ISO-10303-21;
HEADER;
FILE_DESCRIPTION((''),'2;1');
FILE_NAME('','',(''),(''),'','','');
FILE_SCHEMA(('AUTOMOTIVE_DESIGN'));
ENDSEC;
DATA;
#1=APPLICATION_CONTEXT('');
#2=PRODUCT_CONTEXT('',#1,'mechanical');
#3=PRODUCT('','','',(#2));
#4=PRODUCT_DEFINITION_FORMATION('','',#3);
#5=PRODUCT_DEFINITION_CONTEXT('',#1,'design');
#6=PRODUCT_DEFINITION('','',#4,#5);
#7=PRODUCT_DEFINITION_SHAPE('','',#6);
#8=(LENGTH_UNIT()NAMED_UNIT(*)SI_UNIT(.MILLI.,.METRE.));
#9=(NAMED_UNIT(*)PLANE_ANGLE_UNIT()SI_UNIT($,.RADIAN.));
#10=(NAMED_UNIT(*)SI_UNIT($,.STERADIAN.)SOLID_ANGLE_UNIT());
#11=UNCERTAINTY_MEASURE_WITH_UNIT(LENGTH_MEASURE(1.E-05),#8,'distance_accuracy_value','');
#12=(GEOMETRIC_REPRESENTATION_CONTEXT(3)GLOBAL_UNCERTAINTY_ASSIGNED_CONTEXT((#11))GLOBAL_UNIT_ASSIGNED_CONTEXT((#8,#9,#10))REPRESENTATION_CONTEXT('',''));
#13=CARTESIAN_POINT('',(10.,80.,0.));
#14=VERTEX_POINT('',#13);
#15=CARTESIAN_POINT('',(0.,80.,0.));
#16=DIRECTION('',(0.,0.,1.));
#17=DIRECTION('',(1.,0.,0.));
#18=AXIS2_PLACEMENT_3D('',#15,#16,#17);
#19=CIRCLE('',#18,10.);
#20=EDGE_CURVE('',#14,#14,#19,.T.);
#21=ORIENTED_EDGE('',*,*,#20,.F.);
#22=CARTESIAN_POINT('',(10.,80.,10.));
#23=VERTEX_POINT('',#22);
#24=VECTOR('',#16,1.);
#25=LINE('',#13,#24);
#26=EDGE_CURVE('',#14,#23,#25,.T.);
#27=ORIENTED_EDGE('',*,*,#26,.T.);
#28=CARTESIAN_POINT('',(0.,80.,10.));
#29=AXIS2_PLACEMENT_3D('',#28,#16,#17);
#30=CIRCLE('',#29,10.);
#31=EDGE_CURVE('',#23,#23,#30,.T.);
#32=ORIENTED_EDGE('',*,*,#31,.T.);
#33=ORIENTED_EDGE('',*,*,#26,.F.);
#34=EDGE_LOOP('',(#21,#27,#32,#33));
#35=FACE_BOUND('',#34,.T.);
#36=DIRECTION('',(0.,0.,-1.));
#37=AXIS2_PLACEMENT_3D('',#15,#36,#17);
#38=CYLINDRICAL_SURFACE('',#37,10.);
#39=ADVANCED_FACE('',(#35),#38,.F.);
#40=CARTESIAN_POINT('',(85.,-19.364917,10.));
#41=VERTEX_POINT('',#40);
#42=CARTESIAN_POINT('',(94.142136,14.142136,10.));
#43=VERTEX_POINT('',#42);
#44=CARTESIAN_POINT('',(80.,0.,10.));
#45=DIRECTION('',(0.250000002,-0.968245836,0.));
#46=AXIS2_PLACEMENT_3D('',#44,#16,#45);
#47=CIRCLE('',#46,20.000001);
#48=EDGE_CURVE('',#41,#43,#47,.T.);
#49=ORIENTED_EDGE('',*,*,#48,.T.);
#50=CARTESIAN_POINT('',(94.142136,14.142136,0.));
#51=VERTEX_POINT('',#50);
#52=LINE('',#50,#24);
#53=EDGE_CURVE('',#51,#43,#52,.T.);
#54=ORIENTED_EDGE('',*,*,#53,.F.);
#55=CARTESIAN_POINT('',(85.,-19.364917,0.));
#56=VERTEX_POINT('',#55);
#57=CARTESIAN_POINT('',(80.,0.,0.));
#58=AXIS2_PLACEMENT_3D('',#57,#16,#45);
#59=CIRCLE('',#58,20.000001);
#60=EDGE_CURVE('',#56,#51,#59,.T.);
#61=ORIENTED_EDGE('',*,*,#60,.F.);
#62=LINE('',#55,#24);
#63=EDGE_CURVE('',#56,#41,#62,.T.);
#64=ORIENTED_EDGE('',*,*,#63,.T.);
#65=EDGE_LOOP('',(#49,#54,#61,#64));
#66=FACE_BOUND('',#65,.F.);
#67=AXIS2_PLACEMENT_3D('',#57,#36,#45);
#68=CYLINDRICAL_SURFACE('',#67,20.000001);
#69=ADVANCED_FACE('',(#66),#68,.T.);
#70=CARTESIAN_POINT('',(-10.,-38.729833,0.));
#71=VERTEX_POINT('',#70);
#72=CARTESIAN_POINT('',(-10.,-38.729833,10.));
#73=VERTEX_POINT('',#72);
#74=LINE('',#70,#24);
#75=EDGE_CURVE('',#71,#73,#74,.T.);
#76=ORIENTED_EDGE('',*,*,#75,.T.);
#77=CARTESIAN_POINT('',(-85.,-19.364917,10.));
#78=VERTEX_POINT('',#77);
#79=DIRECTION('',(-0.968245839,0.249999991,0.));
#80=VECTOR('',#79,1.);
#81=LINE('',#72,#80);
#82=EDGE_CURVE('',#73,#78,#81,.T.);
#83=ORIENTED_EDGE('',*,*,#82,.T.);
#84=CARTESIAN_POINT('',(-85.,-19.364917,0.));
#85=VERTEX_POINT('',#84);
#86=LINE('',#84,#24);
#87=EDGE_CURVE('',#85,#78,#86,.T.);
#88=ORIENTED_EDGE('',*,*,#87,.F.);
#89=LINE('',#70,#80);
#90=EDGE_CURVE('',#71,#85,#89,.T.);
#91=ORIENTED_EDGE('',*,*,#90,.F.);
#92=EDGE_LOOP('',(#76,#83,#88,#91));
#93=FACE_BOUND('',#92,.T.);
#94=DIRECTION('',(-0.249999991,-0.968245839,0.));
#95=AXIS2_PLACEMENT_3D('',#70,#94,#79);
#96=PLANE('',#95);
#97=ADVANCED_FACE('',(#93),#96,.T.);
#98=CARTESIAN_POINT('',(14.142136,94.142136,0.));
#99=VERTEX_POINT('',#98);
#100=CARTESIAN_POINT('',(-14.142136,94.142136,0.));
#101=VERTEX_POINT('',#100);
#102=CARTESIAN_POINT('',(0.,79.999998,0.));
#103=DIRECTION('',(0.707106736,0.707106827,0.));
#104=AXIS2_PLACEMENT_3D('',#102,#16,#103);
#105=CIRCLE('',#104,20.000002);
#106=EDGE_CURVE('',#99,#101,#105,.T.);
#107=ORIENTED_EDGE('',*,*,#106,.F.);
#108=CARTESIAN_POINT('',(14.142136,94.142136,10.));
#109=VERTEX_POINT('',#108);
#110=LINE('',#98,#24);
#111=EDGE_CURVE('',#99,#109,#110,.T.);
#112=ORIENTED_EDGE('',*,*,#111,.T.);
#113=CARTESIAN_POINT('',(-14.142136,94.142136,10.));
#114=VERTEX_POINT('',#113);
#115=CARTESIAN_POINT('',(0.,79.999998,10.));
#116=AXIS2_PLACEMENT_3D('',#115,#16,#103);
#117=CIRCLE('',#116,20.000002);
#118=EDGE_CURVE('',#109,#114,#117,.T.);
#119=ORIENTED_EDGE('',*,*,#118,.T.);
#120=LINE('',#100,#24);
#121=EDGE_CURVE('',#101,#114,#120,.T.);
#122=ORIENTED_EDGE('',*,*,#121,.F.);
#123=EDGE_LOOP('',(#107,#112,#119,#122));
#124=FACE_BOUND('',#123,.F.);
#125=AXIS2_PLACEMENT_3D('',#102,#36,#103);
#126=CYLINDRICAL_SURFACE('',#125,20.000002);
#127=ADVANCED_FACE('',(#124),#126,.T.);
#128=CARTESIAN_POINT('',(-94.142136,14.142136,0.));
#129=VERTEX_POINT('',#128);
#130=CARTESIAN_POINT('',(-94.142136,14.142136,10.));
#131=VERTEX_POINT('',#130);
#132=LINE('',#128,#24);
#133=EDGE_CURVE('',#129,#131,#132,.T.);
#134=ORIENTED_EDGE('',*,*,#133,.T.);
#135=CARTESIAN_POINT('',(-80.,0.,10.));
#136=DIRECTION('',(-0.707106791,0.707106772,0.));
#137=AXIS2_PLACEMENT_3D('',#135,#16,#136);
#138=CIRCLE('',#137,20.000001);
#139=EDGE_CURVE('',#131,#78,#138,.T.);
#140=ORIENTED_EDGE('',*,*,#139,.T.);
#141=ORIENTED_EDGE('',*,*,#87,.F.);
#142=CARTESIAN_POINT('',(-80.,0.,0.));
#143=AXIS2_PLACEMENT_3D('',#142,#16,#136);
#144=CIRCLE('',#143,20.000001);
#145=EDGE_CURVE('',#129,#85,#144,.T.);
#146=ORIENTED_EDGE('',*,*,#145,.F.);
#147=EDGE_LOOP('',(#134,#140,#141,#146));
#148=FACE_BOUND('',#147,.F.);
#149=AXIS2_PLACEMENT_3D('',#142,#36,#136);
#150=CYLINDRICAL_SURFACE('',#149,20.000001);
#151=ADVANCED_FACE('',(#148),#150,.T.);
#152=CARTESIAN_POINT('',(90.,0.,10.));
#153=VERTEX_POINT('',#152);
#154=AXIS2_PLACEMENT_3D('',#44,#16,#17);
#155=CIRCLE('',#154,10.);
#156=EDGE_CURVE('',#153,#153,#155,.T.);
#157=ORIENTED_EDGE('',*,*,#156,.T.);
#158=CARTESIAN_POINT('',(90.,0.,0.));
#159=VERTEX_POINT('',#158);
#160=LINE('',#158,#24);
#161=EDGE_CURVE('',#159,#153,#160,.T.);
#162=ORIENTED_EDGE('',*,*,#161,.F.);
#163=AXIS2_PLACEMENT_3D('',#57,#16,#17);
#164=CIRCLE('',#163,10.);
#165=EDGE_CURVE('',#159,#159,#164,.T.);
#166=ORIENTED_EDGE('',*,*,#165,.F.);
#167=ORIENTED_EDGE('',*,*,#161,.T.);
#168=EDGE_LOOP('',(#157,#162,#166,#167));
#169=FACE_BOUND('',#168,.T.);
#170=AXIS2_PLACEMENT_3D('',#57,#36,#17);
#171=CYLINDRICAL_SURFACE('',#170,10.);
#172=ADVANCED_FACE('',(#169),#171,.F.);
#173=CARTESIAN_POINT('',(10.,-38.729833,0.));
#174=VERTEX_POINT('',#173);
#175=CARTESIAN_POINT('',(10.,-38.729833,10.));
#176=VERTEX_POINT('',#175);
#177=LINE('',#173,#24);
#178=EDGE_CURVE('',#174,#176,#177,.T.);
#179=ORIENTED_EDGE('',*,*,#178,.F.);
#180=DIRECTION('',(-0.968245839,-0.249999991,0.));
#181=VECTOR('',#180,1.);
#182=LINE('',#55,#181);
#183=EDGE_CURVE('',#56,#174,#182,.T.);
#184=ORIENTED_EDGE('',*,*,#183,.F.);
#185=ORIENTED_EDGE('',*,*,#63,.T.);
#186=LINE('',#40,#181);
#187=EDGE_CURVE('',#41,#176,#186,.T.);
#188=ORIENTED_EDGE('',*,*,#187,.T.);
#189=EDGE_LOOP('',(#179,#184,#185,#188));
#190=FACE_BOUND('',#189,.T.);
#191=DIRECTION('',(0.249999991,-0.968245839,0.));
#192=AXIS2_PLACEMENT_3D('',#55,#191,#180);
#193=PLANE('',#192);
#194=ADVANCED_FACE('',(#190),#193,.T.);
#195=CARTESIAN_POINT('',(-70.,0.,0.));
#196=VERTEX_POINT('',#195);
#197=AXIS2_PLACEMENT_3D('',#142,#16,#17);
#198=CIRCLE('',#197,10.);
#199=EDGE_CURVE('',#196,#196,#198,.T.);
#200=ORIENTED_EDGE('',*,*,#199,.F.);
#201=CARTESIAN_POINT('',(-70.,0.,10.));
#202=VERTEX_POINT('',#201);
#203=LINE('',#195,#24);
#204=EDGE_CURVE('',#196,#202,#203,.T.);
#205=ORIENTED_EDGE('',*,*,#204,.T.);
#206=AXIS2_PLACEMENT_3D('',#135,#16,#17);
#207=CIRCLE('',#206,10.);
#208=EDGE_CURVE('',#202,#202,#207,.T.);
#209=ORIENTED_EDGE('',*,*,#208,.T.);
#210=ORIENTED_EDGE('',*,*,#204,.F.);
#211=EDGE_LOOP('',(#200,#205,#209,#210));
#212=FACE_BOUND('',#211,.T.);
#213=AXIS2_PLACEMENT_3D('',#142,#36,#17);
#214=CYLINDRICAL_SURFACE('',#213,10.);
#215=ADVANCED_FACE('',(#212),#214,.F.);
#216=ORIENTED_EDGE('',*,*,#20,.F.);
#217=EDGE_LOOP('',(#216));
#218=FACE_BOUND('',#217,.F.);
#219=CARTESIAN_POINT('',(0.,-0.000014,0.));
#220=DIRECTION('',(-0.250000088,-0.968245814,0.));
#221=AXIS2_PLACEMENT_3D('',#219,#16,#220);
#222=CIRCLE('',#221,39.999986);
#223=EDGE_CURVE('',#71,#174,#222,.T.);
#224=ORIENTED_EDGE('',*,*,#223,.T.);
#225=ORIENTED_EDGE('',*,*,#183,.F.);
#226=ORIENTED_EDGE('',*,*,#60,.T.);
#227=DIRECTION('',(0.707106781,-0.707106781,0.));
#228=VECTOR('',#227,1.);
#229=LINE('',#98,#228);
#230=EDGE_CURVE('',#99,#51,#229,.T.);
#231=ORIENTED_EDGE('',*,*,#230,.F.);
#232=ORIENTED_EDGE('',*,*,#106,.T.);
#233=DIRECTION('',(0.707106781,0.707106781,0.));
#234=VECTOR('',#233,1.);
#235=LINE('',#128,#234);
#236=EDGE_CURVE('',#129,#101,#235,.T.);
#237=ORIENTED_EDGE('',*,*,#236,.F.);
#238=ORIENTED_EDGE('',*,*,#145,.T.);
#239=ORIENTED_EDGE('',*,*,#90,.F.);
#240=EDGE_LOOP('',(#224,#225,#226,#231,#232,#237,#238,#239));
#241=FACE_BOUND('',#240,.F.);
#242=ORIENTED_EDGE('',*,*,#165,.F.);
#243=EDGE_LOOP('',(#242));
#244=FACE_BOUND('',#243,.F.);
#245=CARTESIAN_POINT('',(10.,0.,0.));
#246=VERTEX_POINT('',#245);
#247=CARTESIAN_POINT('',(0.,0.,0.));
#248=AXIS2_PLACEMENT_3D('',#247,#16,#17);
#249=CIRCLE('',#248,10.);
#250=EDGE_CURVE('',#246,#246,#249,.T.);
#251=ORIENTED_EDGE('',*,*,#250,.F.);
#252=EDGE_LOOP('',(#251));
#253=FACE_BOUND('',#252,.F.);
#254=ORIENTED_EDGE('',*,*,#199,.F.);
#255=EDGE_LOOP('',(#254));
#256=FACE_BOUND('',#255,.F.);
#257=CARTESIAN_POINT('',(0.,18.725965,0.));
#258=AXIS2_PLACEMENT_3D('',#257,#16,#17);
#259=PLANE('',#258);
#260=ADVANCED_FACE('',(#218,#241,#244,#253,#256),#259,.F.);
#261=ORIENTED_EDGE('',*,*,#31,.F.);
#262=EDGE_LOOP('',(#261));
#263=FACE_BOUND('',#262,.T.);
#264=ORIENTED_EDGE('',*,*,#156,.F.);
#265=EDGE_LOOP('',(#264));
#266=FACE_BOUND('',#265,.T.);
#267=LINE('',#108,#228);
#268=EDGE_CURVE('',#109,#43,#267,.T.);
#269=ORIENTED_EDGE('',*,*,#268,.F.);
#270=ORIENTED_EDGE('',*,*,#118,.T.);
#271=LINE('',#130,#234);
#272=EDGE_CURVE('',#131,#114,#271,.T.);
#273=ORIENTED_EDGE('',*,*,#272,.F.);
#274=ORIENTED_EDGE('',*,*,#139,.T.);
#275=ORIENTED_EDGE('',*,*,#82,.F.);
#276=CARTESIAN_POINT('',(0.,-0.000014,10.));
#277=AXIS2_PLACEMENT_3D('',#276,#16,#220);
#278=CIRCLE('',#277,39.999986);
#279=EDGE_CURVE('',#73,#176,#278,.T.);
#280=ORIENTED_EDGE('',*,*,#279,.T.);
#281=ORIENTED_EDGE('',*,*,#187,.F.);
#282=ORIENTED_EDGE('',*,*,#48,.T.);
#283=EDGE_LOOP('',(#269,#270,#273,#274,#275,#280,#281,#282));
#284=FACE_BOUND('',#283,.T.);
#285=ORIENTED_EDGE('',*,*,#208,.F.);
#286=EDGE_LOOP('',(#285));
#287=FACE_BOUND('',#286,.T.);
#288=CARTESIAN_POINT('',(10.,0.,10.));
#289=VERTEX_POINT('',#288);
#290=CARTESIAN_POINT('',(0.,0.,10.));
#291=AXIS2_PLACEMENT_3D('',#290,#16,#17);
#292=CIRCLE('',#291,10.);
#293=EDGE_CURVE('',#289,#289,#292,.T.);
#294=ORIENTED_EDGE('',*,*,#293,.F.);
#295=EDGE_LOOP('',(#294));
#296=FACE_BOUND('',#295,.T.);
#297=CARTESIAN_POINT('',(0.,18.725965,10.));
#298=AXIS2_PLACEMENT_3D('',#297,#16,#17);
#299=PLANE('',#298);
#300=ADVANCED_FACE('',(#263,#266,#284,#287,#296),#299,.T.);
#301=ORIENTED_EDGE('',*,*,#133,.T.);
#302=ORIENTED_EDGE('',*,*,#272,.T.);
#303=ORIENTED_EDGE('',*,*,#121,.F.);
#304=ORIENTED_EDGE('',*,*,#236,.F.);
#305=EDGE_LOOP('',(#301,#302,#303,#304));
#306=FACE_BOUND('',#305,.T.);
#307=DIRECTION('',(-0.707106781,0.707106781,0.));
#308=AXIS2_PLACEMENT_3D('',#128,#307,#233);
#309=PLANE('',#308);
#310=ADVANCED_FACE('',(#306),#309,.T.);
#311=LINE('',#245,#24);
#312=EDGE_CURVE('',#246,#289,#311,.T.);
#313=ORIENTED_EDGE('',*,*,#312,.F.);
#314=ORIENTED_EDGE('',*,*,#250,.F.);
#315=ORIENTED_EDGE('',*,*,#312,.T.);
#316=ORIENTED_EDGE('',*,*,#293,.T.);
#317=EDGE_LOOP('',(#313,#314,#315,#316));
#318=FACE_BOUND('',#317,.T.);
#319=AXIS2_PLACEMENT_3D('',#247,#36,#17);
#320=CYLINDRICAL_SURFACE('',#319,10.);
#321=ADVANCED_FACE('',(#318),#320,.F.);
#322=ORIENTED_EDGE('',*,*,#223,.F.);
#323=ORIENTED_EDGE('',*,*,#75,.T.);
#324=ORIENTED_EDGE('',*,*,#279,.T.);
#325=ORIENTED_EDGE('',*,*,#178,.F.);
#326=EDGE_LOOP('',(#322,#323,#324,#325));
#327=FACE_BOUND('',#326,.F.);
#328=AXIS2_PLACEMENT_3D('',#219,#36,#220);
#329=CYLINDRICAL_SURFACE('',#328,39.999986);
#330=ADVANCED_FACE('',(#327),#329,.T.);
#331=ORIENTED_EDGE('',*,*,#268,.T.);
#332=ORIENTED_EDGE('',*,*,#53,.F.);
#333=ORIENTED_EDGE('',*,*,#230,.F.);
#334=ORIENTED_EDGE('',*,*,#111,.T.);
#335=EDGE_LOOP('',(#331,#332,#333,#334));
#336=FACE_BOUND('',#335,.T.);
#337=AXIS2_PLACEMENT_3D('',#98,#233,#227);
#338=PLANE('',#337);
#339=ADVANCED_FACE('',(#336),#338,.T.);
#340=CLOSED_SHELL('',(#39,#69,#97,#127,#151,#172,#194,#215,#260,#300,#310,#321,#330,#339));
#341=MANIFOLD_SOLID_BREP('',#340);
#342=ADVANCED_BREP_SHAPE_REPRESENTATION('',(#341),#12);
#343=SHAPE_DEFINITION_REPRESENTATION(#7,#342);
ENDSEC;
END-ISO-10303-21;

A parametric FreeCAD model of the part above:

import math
import FreeCAD as App
import Part
import Sketcher
from FreeCAD import Vector

doc = App.newDocument("Part")
body = doc.addObject("PartDesign::Body", "Body")

sketch1 = body.newObject("Sketcher::SketchObject", "Sketch")
sketch1.AttachmentSupport = (doc.getObject("XY_Plane"), [""])
sketch1.MapMode = "FlatFace"
sketch1.addGeometry([
    Part.ArcOfCircle(Part.Circle(Vector(0, 0, 0), Vector(0, 0, 1), 40), math.radians(-104), math.radians(-76)),
    Part.LineSegment(Vector(10, -39, 0), Vector(85, -19, 0)),
    Part.ArcOfCircle(Part.Circle(Vector(80, 0, 0), Vector(0, 0, 1), 20), math.radians(-76), math.radians(45)),
    Part.LineSegment(Vector(94, 14, 0), Vector(14, 94, 0)),
    Part.ArcOfCircle(Part.Circle(Vector(0, 80, 0), Vector(0, 0, 1), 20), math.radians(45), math.radians(135)),
    Part.LineSegment(Vector(-14, 94, 0), Vector(-94, 14, 0)),
    Part.ArcOfCircle(Part.Circle(Vector(-80, 0, 0), Vector(0, 0, 1), 20), math.radians(135), math.radians(256)),
    Part.LineSegment(Vector(-85, -19, 0), Vector(-10, -39, 0)),
    Part.Circle(Vector(-80, 0, 0), Vector(0, 0, 1), 10),
    Part.Circle(Vector(0, 0, 0), Vector(0, 0, 1), 10),
    Part.Circle(Vector(80, 0, 0), Vector(0, 0, 1), 10),
    Part.Circle(Vector(0, 80, 0), Vector(0, 0, 1), 10),
], False)
sketch1.addConstraint([
    Sketcher.Constraint("Tangent", 0, 2, 1, 1),
    Sketcher.Constraint("Tangent", 1, 2, 2, 1),
    Sketcher.Constraint("Tangent", 2, 2, 3, 1),
    Sketcher.Constraint("Tangent", 3, 2, 4, 1),
    Sketcher.Constraint("Tangent", 4, 2, 5, 1),
    Sketcher.Constraint("Tangent", 5, 2, 6, 1),
    Sketcher.Constraint("Tangent", 6, 2, 7, 1),
    Sketcher.Constraint("Tangent", 7, 2, 0, 1),
    Sketcher.Constraint("Coincident", 9, 3, -1, 1),
    Sketcher.Constraint("Coincident", 8, 3, 6, 3),
    Sketcher.Constraint("Coincident", 10, 3, 2, 3),
    Sketcher.Constraint("Coincident", 11, 3, 4, 3),
    Sketcher.Constraint("Equal", 2, 4),
    Sketcher.Constraint("Equal", 4, 6),
    Sketcher.Constraint("Equal", 8, 9),
    Sketcher.Constraint("Equal", 9, 10),
    Sketcher.Constraint("Equal", 10, 11),
    Sketcher.Constraint("Symmetric", 2, 3, 6, 3, -1, 1),
    Sketcher.Constraint("Symmetric", 3, 2, 4, 2, -2),
    Sketcher.Constraint("PointOnObject", 0, 3, -2),
    Sketcher.Constraint("Perpendicular", 3, 5),
    Sketcher.Constraint("Diameter", 8, 20.0),
    Sketcher.Constraint("Radius", 2, 20.000001),
    Sketcher.Constraint("DistanceX", -1, 1, 2, 3, 80.0),
    Sketcher.Constraint("DistanceX", -1, 1, 0, 2, 10.0),
    Sketcher.Constraint("DistanceX", -1, 1, 1, 2, 85.0),
])
pad1 = body.newObject("PartDesign::Pad", "Pad")
pad1.Profile = sketch1
pad1.Length = 10

doc.recompute()
